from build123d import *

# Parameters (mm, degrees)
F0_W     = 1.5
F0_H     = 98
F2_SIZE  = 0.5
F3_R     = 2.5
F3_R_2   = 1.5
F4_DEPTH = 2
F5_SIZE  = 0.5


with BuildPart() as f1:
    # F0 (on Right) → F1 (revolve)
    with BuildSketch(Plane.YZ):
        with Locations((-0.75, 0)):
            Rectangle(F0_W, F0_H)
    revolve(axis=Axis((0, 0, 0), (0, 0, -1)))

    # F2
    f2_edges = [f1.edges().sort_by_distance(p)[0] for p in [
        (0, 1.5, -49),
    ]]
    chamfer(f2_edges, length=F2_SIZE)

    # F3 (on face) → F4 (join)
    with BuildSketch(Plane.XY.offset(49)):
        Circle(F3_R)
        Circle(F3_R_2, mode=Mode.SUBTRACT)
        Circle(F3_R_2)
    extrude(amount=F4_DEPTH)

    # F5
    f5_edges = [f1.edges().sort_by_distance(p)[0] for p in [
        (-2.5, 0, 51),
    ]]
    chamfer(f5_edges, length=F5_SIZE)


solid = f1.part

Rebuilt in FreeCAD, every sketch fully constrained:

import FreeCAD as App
import Part
import Sketcher
from FreeCAD import Vector
Q = App.Units.Quantity


def edges_at(feature, points):
    """Names of the edges that pass closest to the given points."""
    edges = feature.Shape.Edges
    near = lambda p: min(range(len(edges)), key=lambda i: edges[i].distToShape(Part.Vertex(*p))[0])
    return sorted({f"Edge{near(p) + 1}" for p in points})


def add_polygon(sketch, points):
    """Adds a closed chain of lines whose ends are joined by coincident constraints."""
    first, n = sketch.GeometryCount, len(points)
    for a, b in zip(points, points[1:] + points[:1]):
        sketch.addGeometry(Part.LineSegment(App.Vector(*a, 0), App.Vector(*b, 0)), False)
    for i in range(n):
        sketch.addConstraint(Sketcher.Constraint("Coincident", first + i, 2, first + (i + 1) % n, 1))

doc = App.newDocument("Part")
params = doc.addObject("Spreadsheet::Sheet", "Params")
for row, (alias, value) in enumerate([
    ("sketch1_height", "98 mm"),
    ("sketch1_width", "1.5 mm"),
    ("revolution_angle", "360 deg"),
    ("chamfer_size", "0.5 mm"),
    ("sketch2_diameter", "5 mm"),
    ("pad1_length", "2 mm"),
    ("chamfer2_size", "0.5 mm"),
], start=1):
    params.set(f"A{row}", alias)
    params.set(f"B{row}", "=" + value)
    params.setAlias(f"B{row}", alias)

body = doc.addObject("PartDesign::Body", "Body")

# Sketch on YZ plane
sketch1 = doc.addObject("Sketcher::SketchObject", "Sketch")
body.addObject(sketch1)
sketch1.AttachmentSupport = (doc.YZ_Plane, [""])
sketch1.MapMode = "FlatFace"
add_polygon(sketch1, [(-1.5, 49), (-1.5, -49), (0, -49), (0, 49)])  # lines 0-3
sketch1.addConstraint([
    Sketcher.Constraint("Vertical", 0),
    Sketcher.Constraint("Horizontal", 1),
    Sketcher.Constraint("Vertical", 2),
    Sketcher.Constraint("Horizontal", 3),
    Sketcher.Constraint("Symmetric", 1, 2, 2, 2, -1, 1),
    Sketcher.Constraint("DistanceY", 0, 2, 0, 1, Q("98 mm")),
    Sketcher.Constraint("DistanceX", 1, 1, 1, 2, Q("1.5 mm")),
])
sketch1.setExpression("Constraints[9]", "Params.sketch1_height")
sketch1.setExpression("Constraints[10]", "Params.sketch1_width")
revolution = doc.addObject("PartDesign::Revolution", "Revolution")
body.addObject(revolution)
revolution.Profile = sketch1
revolution.ReferenceAxis = (sketch1, ["V_Axis"])
revolution.setExpression("Angle", "Params.revolution_angle")
doc.recompute()

chamfer = doc.addObject("PartDesign::Chamfer", "Chamfer")
body.addObject(chamfer)
chamfer.Base = (revolution, edges_at(revolution, [(0, 1.5, -49)]))
chamfer.setExpression("Size", "Params.chamfer_size")

# Sketch on XY plane
sketch2 = doc.addObject("Sketcher::SketchObject", "Sketch001")
body.addObject(sketch2)
sketch2.AttachmentSupport = (doc.XY_Plane, [""])
sketch2.MapMode = "FlatFace"
sketch2.AttachmentOffset = App.Placement(Vector(0, 0, 49), App.Rotation())
sketch2.addGeometry(Part.Circle(Vector(0, 0, 0), Vector(0, 0, 1), 2.5), False)
sketch2.addConstraint([
    Sketcher.Constraint("Coincident", 0, 3, -1, 1),
    Sketcher.Constraint("Diameter", 0, Q("5 mm")),
])
sketch2.setExpression("Constraints[1]", "Params.sketch2_diameter")
pad1 = doc.addObject("PartDesign::Pad", "Pad")
body.addObject(pad1)
pad1.Profile = sketch2
pad1.setExpression("Length", "Params.pad1_length")
doc.recompute()

chamfer2 = doc.addObject("PartDesign::Chamfer", "Chamfer001")
body.addObject(chamfer2)
chamfer2.Base = (pad1, edges_at(pad1, [(-2.5, 0, 51)]))
chamfer2.setExpression("Size", "Params.chamfer2_size")

doc.recompute()
